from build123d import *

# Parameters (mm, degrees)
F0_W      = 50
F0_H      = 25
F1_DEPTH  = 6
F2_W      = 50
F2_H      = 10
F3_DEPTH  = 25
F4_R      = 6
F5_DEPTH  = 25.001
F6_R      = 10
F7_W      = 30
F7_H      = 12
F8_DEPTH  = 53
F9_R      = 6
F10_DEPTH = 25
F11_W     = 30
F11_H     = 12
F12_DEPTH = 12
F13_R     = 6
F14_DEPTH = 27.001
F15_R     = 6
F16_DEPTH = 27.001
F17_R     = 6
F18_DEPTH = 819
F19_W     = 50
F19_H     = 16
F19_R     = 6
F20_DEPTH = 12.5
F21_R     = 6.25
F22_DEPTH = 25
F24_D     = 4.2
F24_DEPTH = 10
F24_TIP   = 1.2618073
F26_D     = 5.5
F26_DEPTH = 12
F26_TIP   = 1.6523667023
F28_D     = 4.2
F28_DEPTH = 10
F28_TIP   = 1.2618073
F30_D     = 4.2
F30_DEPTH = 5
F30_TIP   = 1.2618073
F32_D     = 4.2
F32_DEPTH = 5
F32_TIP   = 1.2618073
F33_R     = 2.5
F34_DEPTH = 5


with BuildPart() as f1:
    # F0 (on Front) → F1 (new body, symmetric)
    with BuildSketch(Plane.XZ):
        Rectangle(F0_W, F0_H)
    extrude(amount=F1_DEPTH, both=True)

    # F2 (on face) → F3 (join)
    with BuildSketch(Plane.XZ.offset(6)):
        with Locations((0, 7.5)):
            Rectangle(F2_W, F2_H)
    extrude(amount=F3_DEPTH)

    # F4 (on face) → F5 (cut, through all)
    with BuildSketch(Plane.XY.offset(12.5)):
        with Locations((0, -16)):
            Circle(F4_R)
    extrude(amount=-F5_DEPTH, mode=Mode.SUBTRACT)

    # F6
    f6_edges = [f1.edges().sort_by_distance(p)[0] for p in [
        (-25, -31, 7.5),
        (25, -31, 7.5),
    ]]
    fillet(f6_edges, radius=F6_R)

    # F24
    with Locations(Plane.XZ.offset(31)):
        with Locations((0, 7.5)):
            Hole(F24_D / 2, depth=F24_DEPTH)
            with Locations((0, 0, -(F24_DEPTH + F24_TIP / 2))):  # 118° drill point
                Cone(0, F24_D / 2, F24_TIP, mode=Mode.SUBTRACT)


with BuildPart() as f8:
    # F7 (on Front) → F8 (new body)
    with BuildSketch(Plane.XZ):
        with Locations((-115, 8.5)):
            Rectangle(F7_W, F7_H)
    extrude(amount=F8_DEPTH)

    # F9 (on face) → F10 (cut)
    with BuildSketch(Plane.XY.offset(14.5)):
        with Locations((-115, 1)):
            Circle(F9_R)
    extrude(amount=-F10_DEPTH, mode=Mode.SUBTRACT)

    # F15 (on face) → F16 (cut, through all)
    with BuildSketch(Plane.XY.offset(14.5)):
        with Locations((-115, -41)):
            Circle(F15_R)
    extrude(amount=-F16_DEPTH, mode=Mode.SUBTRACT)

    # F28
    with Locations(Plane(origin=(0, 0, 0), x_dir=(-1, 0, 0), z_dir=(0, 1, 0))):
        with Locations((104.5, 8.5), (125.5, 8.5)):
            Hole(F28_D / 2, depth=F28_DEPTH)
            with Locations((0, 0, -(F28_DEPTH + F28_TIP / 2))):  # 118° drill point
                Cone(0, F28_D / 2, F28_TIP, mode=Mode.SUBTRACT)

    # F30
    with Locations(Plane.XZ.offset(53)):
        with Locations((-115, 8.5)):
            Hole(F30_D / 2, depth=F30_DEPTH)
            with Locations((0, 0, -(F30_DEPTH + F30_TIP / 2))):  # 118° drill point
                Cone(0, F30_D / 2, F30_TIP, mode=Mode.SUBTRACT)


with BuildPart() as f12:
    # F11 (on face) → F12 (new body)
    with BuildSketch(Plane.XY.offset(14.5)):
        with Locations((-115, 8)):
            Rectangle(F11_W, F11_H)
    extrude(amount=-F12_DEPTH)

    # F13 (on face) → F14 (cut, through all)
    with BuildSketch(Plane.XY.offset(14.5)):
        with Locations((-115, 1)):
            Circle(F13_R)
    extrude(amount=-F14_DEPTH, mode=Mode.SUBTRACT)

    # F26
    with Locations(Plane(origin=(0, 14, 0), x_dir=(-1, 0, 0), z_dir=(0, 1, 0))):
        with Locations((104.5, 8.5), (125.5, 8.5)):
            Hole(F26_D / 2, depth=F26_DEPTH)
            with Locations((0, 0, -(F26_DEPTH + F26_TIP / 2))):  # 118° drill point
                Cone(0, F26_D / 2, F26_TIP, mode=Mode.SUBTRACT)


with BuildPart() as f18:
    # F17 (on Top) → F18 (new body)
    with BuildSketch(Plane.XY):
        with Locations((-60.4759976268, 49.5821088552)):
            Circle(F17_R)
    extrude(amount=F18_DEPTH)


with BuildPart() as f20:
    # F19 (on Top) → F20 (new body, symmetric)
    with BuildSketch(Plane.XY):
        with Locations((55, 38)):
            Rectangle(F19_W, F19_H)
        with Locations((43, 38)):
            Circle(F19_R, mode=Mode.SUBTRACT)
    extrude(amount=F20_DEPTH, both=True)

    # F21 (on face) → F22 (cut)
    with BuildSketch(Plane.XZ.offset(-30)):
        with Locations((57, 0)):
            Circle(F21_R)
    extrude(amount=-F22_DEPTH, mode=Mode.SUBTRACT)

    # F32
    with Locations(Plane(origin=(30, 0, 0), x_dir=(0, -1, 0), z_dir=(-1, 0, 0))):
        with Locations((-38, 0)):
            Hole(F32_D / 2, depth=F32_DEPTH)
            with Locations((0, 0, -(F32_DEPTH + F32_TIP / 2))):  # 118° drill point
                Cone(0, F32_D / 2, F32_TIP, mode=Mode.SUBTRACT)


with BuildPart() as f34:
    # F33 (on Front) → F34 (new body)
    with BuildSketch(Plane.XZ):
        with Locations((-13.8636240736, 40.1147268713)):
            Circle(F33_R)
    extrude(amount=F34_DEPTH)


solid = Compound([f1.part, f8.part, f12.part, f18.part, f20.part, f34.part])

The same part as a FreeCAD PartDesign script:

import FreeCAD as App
import Part
import Sketcher

V = App.Vector
Q = App.Units.Quantity


def edges_at(feature, points):
    """Names of the edges that pass closest to the given points."""
    edges = feature.Shape.Edges
    near = lambda p: min(range(len(edges)), key=lambda i: edges[i].distToShape(Part.Vertex(*p))[0])
    return sorted({f"Edge{near(p) + 1}" for p in points})


def add_polygon(sketch, points):
    """Adds a closed chain of lines whose ends are joined by coincident constraints."""
    first, n = sketch.GeometryCount, len(points)
    for a, b in zip(points, points[1:] + points[:1]):
        sketch.addGeometry(Part.LineSegment(App.Vector(*a, 0), App.Vector(*b, 0)), False)
    for i in range(n):
        sketch.addConstraint(Sketcher.Constraint("Coincident", first + i, 2, first + (i + 1) % n, 1))

doc = App.newDocument("Part")
params = doc.addObject("Spreadsheet::Sheet", "Params")
for row, (alias, value) in enumerate([
    ("sketch1_width", "50 mm"),
    ("sketch1_height", "25 mm"),
    ("pad1_length", "12 mm"),
    ("sketch2_width", "50 mm"),
    ("sketch2_height", "10 mm"),
    ("pad2_length", "25 mm"),
    ("sketch3_diameter", "12 mm"),
    ("fillet_radius", "10 mm"),
    ("sketch4_diameter", "4.2 mm"),
    ("hole_diameter", "4.2 mm"),
    ("hole_depth", "10 mm"),
    ("sketch5_width", "30 mm"),
    ("sketch5_height", "12 mm"),
    ("pad3_length", "53 mm"),
    ("sketch6_diameter", "12 mm"),
    ("pocket2_length", "25 mm"),
    ("sketch7_diameter", "12 mm"),
    ("sketch8_diameter", "4.2 mm"),
    ("hole2_diameter", "4.2 mm"),
    ("hole2_depth", "10 mm"),
    ("sketch9_diameter", "4.2 mm"),
    ("hole3_diameter", "4.2 mm"),
    ("hole3_depth", "5 mm"),
    ("sketch10_width", "30 mm"),
    ("sketch10_height", "12 mm"),
    ("pad4_length", "12 mm"),
    ("sketch11_diameter", "12 mm"),
    ("sketch12_diameter", "5.5 mm"),
    ("hole4_diameter", "5.5 mm"),
    ("hole4_depth", "12 mm"),
    ("sketch13_diameter", "12 mm"),
    ("pad5_length", "819 mm"),
    ("sketch14_diameter", "12 mm"),
    ("sketch14_width", "50 mm"),
    ("sketch14_height", "16 mm"),
    ("pad6_length", "25 mm"),
    ("sketch15_diameter", "12.5 mm"),
    ("pocket5_length", "25 mm"),
    ("sketch16_diameter", "4.2 mm"),
    ("hole5_diameter", "4.2 mm"),
    ("hole5_depth", "5 mm"),
    ("sketch17_diameter", "5 mm"),
    ("pad7_length", "5 mm"),
], start=1):
    params.set(f"A{row}", alias)
    params.set(f"B{row}", "=" + value)
    params.setAlias(f"B{row}", alias)

body = doc.addObject("PartDesign::Body", "Body")

sketch1 = body.newObject("Sketcher::SketchObject", "Sketch")
sketch1.AttachmentSupport = (doc.getObject("XZ_Plane"), [""])
sketch1.MapMode = "FlatFace"
add_polygon(sketch1, [(-25, 12), (-25, -12), (25, -12), (25, 12)])
sketch1.addConstraint([
    Sketcher.Constraint("Vertical", 0),
    Sketcher.Constraint("Horizontal", 1),
    Sketcher.Constraint("Vertical", 2),
    Sketcher.Constraint("Horizontal", 3),
    Sketcher.Constraint("Symmetric", 0, 2, 2, 2, -1, 1),
    Sketcher.Constraint("DistanceX", 1, 1, 1, 2, Q("50 mm")),
    Sketcher.Constraint("DistanceY", 0, 2, 0, 1, Q("25 mm")),
])
sketch1.setExpression("Constraints[9]", "Params.sketch1_width")
sketch1.setExpression("Constraints[10]", "Params.sketch1_height")
pad1 = body.newObject("PartDesign::Pad", "Pad")
pad1.Profile = sketch1
pad1.setExpression("Length", "Params.pad1_length")
pad1.Midplane = True

sketch2 = body.newObject("Sketcher::SketchObject", "Sketch001")
sketch2.AttachmentSupport = (doc.getObject("XZ_Plane"), [""])
sketch2.MapMode = "FlatFace"
sketch2.AttachmentOffset = App.Placement(V(0, 0, 6), App.Rotation())
add_polygon(sketch2, [(-25, 12), (-25, 2), (25, 2), (25, 12)])
sketch2.addConstraint([
    Sketcher.Constraint("Vertical", 0),
    Sketcher.Constraint("Horizontal", 1),
    Sketcher.Constraint("Vertical", 2),
    Sketcher.Constraint("Horizontal", 3),
    Sketcher.Constraint("DistanceX", 1, 1, 1, 2, Q("50 mm")),
    Sketcher.Constraint("DistanceY", 0, 2, 0, 1, Q("10 mm")),
    Sketcher.Constraint("DistanceX", 0, 2, -1, 1, Q("25 mm")),
    Sketcher.Constraint("DistanceY", -1, 1, 0, 2, Q("2.5 mm")),
])
sketch2.setExpression("Constraints[8]", "Params.sketch2_width")
sketch2.setExpression("Constraints[9]", "Params.sketch2_height")
pad2 = body.newObject("PartDesign::Pad", "Pad001")
pad2.Profile = sketch2
pad2.setExpression("Length", "Params.pad2_length")

sketch3 = body.newObject("Sketcher::SketchObject", "Sketch002")
sketch3.AttachmentSupport = (doc.getObject("XY_Plane"), [""])
sketch3.MapMode = "FlatFace"
sketch3.AttachmentOffset = App.Placement(V(0, 0, 12.5), App.Rotation())
sketch3.addGeometry(Part.Circle(V(0, -16, 0), V(0, 0, 1), 6), False)
sketch3.addConstraint([
    Sketcher.Constraint("PointOnObject", 0, 3, -2),
    Sketcher.Constraint("Diameter", 0, Q("12 mm")),
    Sketcher.Constraint("DistanceY", 0, 3, -1, 1, Q("16 mm")),
])
sketch3.setExpression("Constraints[1]", "Params.sketch3_diameter")
pocket1 = body.newObject("PartDesign::Pocket", "Pocket")
pocket1.Profile = sketch3
pocket1.Type = "ThroughAll"
doc.recompute()

fillet = body.newObject("PartDesign::Fillet", "Fillet")
fillet.Base = (pocket1, edges_at(pocket1, [(-25, -31, 7.5), (25, -31, 7.5)]))
fillet.setExpression("Radius", "Params.fillet_radius")

sketch4 = body.newObject("Sketcher::SketchObject", "Sketch003")
sketch4.AttachmentSupport = (doc.getObject("XZ_Plane"), [""])
sketch4.MapMode = "FlatFace"
sketch4.AttachmentOffset = App.Placement(V(0, 0, 31), App.Rotation())
sketch4.addGeometry(Part.Circle(V(0, 7.5, 0), V(0, 0, 1), 2.1), False)
sketch4.addConstraint([
    Sketcher.Constraint("PointOnObject", 0, 3, -2),
    Sketcher.Constraint("Diameter", 0, Q("4.2 mm")),
    Sketcher.Constraint("DistanceY", -1, 1, 0, 3, Q("7.5 mm")),
])
sketch4.setExpression("Constraints[1]", "Params.sketch4_diameter")
doc.recompute()
hole = body.newObject("PartDesign::Hole", "Hole")
hole.Profile = sketch4
hole.ThreadType = "None"
hole.setExpression("Diameter", "Params.hole_diameter")
hole.DepthType = "Dimension"
hole.setExpression("Depth", "Params.hole_depth")
hole.DrillPoint = "Angled"
hole.DrillPointAngle = 118
body2 = doc.addObject("PartDesign::Body", "Body001")

sketch5 = body2.newObject("Sketcher::SketchObject", "Sketch004")
sketch5.AttachmentSupport = (doc.getObject("XZ_Plane001"), [""])
sketch5.MapMode = "FlatFace"
add_polygon(sketch5, [(-130, 14), (-130, 2), (-100, 2), (-100, 14)])
sketch5.addConstraint([
    Sketcher.Constraint("Vertical", 0),
    Sketcher.Constraint("Horizontal", 1),
    Sketcher.Constraint("Vertical", 2),
    Sketcher.Constraint("Horizontal", 3),
    Sketcher.Constraint("DistanceX", 1, 1, 1, 2, Q("30 mm")),
    Sketcher.Constraint("DistanceY", 0, 2, 0, 1, Q("12 mm")),
    Sketcher.Constraint("DistanceX", 0, 2, -1, 1, Q("130 mm")),
    Sketcher.Constraint("DistanceY", -1, 1, 0, 2, Q("2.5 mm")),
])
sketch5.setExpression("Constraints[8]", "Params.sketch5_width")
sketch5.setExpression("Constraints[9]", "Params.sketch5_height")
pad3 = body2.newObject("PartDesign::Pad", "Pad002")
pad3.Profile = sketch5
pad3.setExpression("Length", "Params.pad3_length")

sketch6 = body2.newObject("Sketcher::SketchObject", "Sketch005")
sketch6.AttachmentSupport = (doc.getObject("XY_Plane001"), [""])
sketch6.MapMode = "FlatFace"
sketch6.AttachmentOffset = App.Placement(V(0, 0, 14.5), App.Rotation())
sketch6.addGeometry(Part.Circle(V(-115, 1, 0), V(0, 0, 1), 6), False)
sketch6.addConstraint([
    Sketcher.Constraint("Diameter", 0, Q("12 mm")),
    Sketcher.Constraint("DistanceX", 0, 3, -1, 1, Q("115 mm")),
    Sketcher.Constraint("DistanceY", -1, 1, 0, 3, Q("1 mm")),
])
sketch6.setExpression("Constraints[0]", "Params.sketch6_diameter")
pocket2 = body2.newObject("PartDesign::Pocket", "Pocket001")
pocket2.Profile = sketch6
pocket2.setExpression("Length", "Params.pocket2_length")

sketch7 = body2.newObject("Sketcher::SketchObject", "Sketch006")
sketch7.AttachmentSupport = (doc.getObject("XY_Plane001"), [""])
sketch7.MapMode = "FlatFace"
sketch7.AttachmentOffset = App.Placement(V(0, 0, 14.5), App.Rotation())
sketch7.addGeometry(Part.Circle(V(-115, -41, 0), V(0, 0, 1), 6), False)
sketch7.addConstraint([
    Sketcher.Constraint("Diameter", 0, Q("12 mm")),
    Sketcher.Constraint("DistanceX", 0, 3, -1, 1, Q("115 mm")),
    Sketcher.Constraint("DistanceY", 0, 3, -1, 1, Q("41 mm")),
])
sketch7.setExpression("Constraints[0]", "Params.sketch7_diameter")
pocket3 = body2.newObject("PartDesign::Pocket", "Pocket002")
pocket3.Profile = sketch7
pocket3.Type = "ThroughAll"

sketch8 = body2.newObject("Sketcher::SketchObject", "Sketch007")
sketch8.AttachmentSupport = (doc.getObject("XZ_Plane001"), [""])
sketch8.MapMode = "FlatFace"
sketch8.addGeometry([
    Part.Circle(V(-104.5, 8.5, 0), V(0, 0, 1), 2.1),
    Part.Circle(V(-125.5, 8.5, 0), V(0, 0, 1), 2.1),
], False)
sketch8.addConstraint([
    Sketcher.Constraint("Equal", 0, 1),
    Sketcher.Constraint("Horizontal", 0, 3, 1, 3),
    Sketcher.Constraint("Diameter", 0, Q("4.2 mm")),
    Sketcher.Constraint("DistanceX", 1, 3, 0, 3, Q("21 mm")),
    Sketcher.Constraint("DistanceX", 0, 3, -1, 1, Q("104.5 mm")),
    Sketcher.Constraint("DistanceY", -1, 1, 0, 3, Q("8.5 mm")),
])
sketch8.setExpression("Constraints[2]", "Params.sketch8_diameter")
doc.recompute()
hole2 = body2.newObject("PartDesign::Hole", "Hole001")
hole2.Profile = sketch8
hole2.ThreadType = "None"
hole2.setExpression("Diameter", "Params.hole2_diameter")
hole2.DepthType = "Dimension"
hole2.setExpression("Depth", "Params.hole2_depth")
hole2.DrillPoint = "Angled"
hole2.DrillPointAngle = 118
hole2.Reversed = True

sketch9 = body2.newObject("Sketcher::SketchObject", "Sketch008")
sketch9.AttachmentSupport = (doc.getObject("XZ_Plane001"), [""])
sketch9.MapMode = "FlatFace"
sketch9.AttachmentOffset = App.Placement(V(0, 0, 53), App.Rotation())
sketch9.addGeometry(Part.Circle(V(-115, 8.5, 0), V(0, 0, 1), 2.1), False)
sketch9.addConstraint([
    Sketcher.Constraint("Diameter", 0, Q("4.2 mm")),
    Sketcher.Constraint("DistanceX", 0, 3, -1, 1, Q("115 mm")),
    Sketcher.Constraint("DistanceY", -1, 1, 0, 3, Q("8.5 mm")),
])
sketch9.setExpression("Constraints[0]", "Params.sketch9_diameter")
doc.recompute()
hole3 = body2.newObject("PartDesign::Hole", "Hole002")
hole3.Profile = sketch9
hole3.ThreadType = "None"
hole3.setExpression("Diameter", "Params.hole3_diameter")
hole3.DepthType = "Dimension"
hole3.setExpression("Depth", "Params.hole3_depth")
hole3.DrillPoint = "Angled"
hole3.DrillPointAngle = 118
body3 = doc.addObject("PartDesign::Body", "Body002")

sketch10 = body3.newObject("Sketcher::SketchObject", "Sketch009")
sketch10.AttachmentSupport = (doc.getObject("XY_Plane002"), [""])
sketch10.MapMode = "FlatFace"
sketch10.AttachmentOffset = App.Placement(V(0, 0, 14.5), App.Rotation())
add_polygon(sketch10, [(-130, 14), (-130, 2), (-100, 2), (-100, 14)])
sketch10.addConstraint([
    Sketcher.Constraint("Vertical", 0),
    Sketcher.Constraint("Horizontal", 1),
    Sketcher.Constraint("Vertical", 2),
    Sketcher.Constraint("Horizontal", 3),
    Sketcher.Constraint("DistanceX", 1, 1, 1, 2, Q("30 mm")),
    Sketcher.Constraint("DistanceY", 0, 2, 0, 1, Q("12 mm")),
    Sketcher.Constraint("DistanceX", 0, 2, -1, 1, Q("130 mm")),
    Sketcher.Constraint("DistanceY", -1, 1, 0, 2, Q("2 mm")),
])
sketch10.setExpression("Constraints[8]", "Params.sketch10_width")
sketch10.setExpression("Constraints[9]", "Params.sketch10_height")
pad4 = body3.newObject("PartDesign::Pad", "Pad003")
pad4.Profile = sketch10
pad4.setExpression("Length", "Params.pad4_length")
pad4.Reversed = True

sketch11 = body3.newObject("Sketcher::SketchObject", "Sketch010")
sketch11.AttachmentSupport = (doc.getObject("XY_Plane002"), [""])
sketch11.MapMode = "FlatFace"
sketch11.AttachmentOffset = App.Placement(V(0, 0, 14.5), App.Rotation())
sketch11.addGeometry(Part.Circle(V(-115, 1, 0), V(0, 0, 1), 6), False)
sketch11.addConstraint([
    Sketcher.Constraint("Diameter", 0, Q("12 mm")),
    Sketcher.Constraint("DistanceX", 0, 3, -1, 1, Q("115 mm")),
    Sketcher.Constraint("DistanceY", -1, 1, 0, 3, Q("1 mm")),
])
sketch11.setExpression("Constraints[0]", "Params.sketch11_diameter")
pocket4 = body3.newObject("PartDesign::Pocket", "Pocket003")
pocket4.Profile = sketch11
pocket4.Type = "ThroughAll"

sketch12 = body3.newObject("Sketcher::SketchObject", "Sketch011")
sketch12.AttachmentSupport = (doc.getObject("XZ_Plane002"), [""])
sketch12.MapMode = "FlatFace"
sketch12.AttachmentOffset = App.Placement(V(0, 0, -14), App.Rotation())
sketch12.addGeometry([
    Part.Circle(V(-104.5, 8.5, 0), V(0, 0, 1), 2.8),
    Part.Circle(V(-125.5, 8.5, 0), V(0, 0, 1), 2.8),
], False)
sketch12.addConstraint([
    Sketcher.Constraint("Equal", 0, 1),
    Sketcher.Constraint("Horizontal", 0, 3, 1, 3),
    Sketcher.Constraint("Diameter", 0, Q("5.5 mm")),
    Sketcher.Constraint("DistanceX", 1, 3, 0, 3, Q("21 mm")),
    Sketcher.Constraint("DistanceX", 0, 3, -1, 1, Q("104.5 mm")),
    Sketcher.Constraint("DistanceY", -1, 1, 0, 3, Q("8.5 mm")),
])
sketch12.setExpression("Constraints[2]", "Params.sketch12_diameter")
doc.recompute()
hole4 = body3.newObject("PartDesign::Hole", "Hole003")
hole4.Profile = sketch12
hole4.ThreadType = "None"
hole4.setExpression("Diameter", "Params.hole4_diameter")
hole4.DepthType = "Dimension"
hole4.setExpression("Depth", "Params.hole4_depth")
hole4.DrillPoint = "Angled"
hole4.DrillPointAngle = 118
hole4.Reversed = True
body4 = doc.addObject("PartDesign::Body", "Body003")

sketch13 = body4.newObject("Sketcher::SketchObject", "Sketch012")
sketch13.AttachmentSupport = (doc.getObject("XY_Plane003"), [""])
sketch13.MapMode = "FlatFace"
sketch13.addGeometry(Part.Circle(V(-60, 50, 0), V(0, 0, 1), 6), False)
sketch13.addConstraint([
    Sketcher.Constraint("Diameter", 0, Q("12 mm")),
    Sketcher.Constraint("DistanceY", -1, 1, 0, 3, Q("49.582109 mm")),
    Sketcher.Constraint("DistanceX", 0, 3, -1, 1, Q("60.475998 mm")),
])
sketch13.setExpression("Constraints[0]", "Params.sketch13_diameter")
pad5 = body4.newObject("PartDesign::Pad", "Pad004")
pad5.Profile = sketch13
pad5.setExpression("Length", "Params.pad5_length")
body5 = doc.addObject("PartDesign::Body", "Body004")

sketch14 = body5.newObject("Sketcher::SketchObject", "Sketch013")
sketch14.AttachmentSupport = (doc.getObject("XY_Plane004"), [""])
sketch14.MapMode = "FlatFace"
add_polygon(sketch14, [(30, 46), (30, 30), (80, 30), (80, 46)])
sketch14.addGeometry(Part.Circle(V(43, 38, 0), V(0, 0, 1), 6), False)
sketch14.addConstraint([
    Sketcher.Constraint("Vertical", 0),
    Sketcher.Constraint("Horizontal", 1),
    Sketcher.Constraint("Vertical", 2),
    Sketcher.Constraint("Horizontal", 3),
    Sketcher.Constraint("Diameter", 4, Q("12 mm")),
    Sketcher.Constraint("DistanceX", 1, 1, 1, 2, Q("50 mm")),
    Sketcher.Constraint("DistanceY", 0, 2, 0, 1, Q("16 mm")),
    Sketcher.Constraint("DistanceX", -1, 1, 4, 3, Q("43 mm")),
    Sketcher.Constraint("DistanceY", -1, 1, 4, 3, Q("38 mm")),
    Sketcher.Constraint("DistanceX", -1, 1, 0, 2, Q("30 mm")),
    Sketcher.Constraint("DistanceY", -1, 1, 0, 2, Q("30 mm")),
])
sketch14.setExpression("Constraints[8]", "Params.sketch14_diameter")
sketch14.setExpression("Constraints[9]", "Params.sketch14_width")
sketch14.setExpression("Constraints[10]", "Params.sketch14_height")
pad6 = body5.newObject("PartDesign::Pad", "Pad005")
pad6.Profile = sketch14
pad6.setExpression("Length", "Params.pad6_length")
pad6.Midplane = True

sketch15 = body5.newObject("Sketcher::SketchObject", "Sketch014")
sketch15.AttachmentSupport = (doc.getObject("XZ_Plane004"), [""])
sketch15.MapMode = "FlatFace"
sketch15.AttachmentOffset = App.Placement(V(0, 0, -30), App.Rotation())
sketch15.addGeometry(Part.Circle(V(57, 0, 0), V(0, 0, 1), 6), False)
sketch15.addConstraint([
    Sketcher.Constraint("PointOnObject", 0, 3, -1),
    Sketcher.Constraint("Diameter", 0, Q("12.5 mm")),
    Sketcher.Constraint("DistanceX", -1, 1, 0, 3, Q("57 mm")),
])
sketch15.setExpression("Constraints[1]", "Params.sketch15_diameter")
pocket5 = body5.newObject("PartDesign::Pocket", "Pocket004")
pocket5.Profile = sketch15
pocket5.setExpression("Length", "Params.pocket5_length")

sketch16 = body5.newObject("Sketcher::SketchObject", "Sketch015")
sketch16.AttachmentSupport = (doc.getObject("YZ_Plane004"), [""])
sketch16.MapMode = "FlatFace"
sketch16.AttachmentOffset = App.Placement(V(0, 0, 30), App.Rotation())
sketch16.addGeometry(Part.Circle(V(38, 0, 0), V(0, 0, 1), 2.1), False)
sketch16.addConstraint([
    Sketcher.Constraint("PointOnObject", 0, 3, -1),
    Sketcher.Constraint("Diameter", 0, Q("4.2 mm")),
    Sketcher.Constraint("DistanceX", -1, 1, 0, 3, Q("38 mm")),
])
sketch16.setExpression("Constraints[1]", "Params.sketch16_diameter")
doc.recompute()
hole5 = body5.newObject("PartDesign::Hole", "Hole004")
hole5.Profile = sketch16
hole5.ThreadType = "None"
hole5.setExpression("Diameter", "Params.hole5_diameter")
hole5.DepthType = "Dimension"
hole5.setExpression("Depth", "Params.hole5_depth")
hole5.DrillPoint = "Angled"
hole5.DrillPointAngle = 118
hole5.Reversed = True
body6 = doc.addObject("PartDesign::Body", "Body005")

sketch17 = body6.newObject("Sketcher::SketchObject", "Sketch016")
sketch17.AttachmentSupport = (doc.getObject("XZ_Plane005"), [""])
sketch17.MapMode = "FlatFace"
sketch17.addGeometry(Part.Circle(V(-13.9, 40.1, 0), V(0, 0, 1), 2.5), False)
sketch17.addConstraint([
    Sketcher.Constraint("Diameter", 0, Q("5 mm")),
    Sketcher.Constraint("DistanceX", 0, 3, -1, 1, Q("13.863624 mm")),
    Sketcher.Constraint("DistanceY", -1, 1, 0, 3, Q("40.114727 mm")),
])
sketch17.setExpression("Constraints[0]", "Params.sketch17_diameter")
pad7 = body6.newObject("PartDesign::Pad", "Pad006")
pad7.Profile = sketch17
pad7.setExpression("Length", "Params.pad7_length")

doc.recompute()
